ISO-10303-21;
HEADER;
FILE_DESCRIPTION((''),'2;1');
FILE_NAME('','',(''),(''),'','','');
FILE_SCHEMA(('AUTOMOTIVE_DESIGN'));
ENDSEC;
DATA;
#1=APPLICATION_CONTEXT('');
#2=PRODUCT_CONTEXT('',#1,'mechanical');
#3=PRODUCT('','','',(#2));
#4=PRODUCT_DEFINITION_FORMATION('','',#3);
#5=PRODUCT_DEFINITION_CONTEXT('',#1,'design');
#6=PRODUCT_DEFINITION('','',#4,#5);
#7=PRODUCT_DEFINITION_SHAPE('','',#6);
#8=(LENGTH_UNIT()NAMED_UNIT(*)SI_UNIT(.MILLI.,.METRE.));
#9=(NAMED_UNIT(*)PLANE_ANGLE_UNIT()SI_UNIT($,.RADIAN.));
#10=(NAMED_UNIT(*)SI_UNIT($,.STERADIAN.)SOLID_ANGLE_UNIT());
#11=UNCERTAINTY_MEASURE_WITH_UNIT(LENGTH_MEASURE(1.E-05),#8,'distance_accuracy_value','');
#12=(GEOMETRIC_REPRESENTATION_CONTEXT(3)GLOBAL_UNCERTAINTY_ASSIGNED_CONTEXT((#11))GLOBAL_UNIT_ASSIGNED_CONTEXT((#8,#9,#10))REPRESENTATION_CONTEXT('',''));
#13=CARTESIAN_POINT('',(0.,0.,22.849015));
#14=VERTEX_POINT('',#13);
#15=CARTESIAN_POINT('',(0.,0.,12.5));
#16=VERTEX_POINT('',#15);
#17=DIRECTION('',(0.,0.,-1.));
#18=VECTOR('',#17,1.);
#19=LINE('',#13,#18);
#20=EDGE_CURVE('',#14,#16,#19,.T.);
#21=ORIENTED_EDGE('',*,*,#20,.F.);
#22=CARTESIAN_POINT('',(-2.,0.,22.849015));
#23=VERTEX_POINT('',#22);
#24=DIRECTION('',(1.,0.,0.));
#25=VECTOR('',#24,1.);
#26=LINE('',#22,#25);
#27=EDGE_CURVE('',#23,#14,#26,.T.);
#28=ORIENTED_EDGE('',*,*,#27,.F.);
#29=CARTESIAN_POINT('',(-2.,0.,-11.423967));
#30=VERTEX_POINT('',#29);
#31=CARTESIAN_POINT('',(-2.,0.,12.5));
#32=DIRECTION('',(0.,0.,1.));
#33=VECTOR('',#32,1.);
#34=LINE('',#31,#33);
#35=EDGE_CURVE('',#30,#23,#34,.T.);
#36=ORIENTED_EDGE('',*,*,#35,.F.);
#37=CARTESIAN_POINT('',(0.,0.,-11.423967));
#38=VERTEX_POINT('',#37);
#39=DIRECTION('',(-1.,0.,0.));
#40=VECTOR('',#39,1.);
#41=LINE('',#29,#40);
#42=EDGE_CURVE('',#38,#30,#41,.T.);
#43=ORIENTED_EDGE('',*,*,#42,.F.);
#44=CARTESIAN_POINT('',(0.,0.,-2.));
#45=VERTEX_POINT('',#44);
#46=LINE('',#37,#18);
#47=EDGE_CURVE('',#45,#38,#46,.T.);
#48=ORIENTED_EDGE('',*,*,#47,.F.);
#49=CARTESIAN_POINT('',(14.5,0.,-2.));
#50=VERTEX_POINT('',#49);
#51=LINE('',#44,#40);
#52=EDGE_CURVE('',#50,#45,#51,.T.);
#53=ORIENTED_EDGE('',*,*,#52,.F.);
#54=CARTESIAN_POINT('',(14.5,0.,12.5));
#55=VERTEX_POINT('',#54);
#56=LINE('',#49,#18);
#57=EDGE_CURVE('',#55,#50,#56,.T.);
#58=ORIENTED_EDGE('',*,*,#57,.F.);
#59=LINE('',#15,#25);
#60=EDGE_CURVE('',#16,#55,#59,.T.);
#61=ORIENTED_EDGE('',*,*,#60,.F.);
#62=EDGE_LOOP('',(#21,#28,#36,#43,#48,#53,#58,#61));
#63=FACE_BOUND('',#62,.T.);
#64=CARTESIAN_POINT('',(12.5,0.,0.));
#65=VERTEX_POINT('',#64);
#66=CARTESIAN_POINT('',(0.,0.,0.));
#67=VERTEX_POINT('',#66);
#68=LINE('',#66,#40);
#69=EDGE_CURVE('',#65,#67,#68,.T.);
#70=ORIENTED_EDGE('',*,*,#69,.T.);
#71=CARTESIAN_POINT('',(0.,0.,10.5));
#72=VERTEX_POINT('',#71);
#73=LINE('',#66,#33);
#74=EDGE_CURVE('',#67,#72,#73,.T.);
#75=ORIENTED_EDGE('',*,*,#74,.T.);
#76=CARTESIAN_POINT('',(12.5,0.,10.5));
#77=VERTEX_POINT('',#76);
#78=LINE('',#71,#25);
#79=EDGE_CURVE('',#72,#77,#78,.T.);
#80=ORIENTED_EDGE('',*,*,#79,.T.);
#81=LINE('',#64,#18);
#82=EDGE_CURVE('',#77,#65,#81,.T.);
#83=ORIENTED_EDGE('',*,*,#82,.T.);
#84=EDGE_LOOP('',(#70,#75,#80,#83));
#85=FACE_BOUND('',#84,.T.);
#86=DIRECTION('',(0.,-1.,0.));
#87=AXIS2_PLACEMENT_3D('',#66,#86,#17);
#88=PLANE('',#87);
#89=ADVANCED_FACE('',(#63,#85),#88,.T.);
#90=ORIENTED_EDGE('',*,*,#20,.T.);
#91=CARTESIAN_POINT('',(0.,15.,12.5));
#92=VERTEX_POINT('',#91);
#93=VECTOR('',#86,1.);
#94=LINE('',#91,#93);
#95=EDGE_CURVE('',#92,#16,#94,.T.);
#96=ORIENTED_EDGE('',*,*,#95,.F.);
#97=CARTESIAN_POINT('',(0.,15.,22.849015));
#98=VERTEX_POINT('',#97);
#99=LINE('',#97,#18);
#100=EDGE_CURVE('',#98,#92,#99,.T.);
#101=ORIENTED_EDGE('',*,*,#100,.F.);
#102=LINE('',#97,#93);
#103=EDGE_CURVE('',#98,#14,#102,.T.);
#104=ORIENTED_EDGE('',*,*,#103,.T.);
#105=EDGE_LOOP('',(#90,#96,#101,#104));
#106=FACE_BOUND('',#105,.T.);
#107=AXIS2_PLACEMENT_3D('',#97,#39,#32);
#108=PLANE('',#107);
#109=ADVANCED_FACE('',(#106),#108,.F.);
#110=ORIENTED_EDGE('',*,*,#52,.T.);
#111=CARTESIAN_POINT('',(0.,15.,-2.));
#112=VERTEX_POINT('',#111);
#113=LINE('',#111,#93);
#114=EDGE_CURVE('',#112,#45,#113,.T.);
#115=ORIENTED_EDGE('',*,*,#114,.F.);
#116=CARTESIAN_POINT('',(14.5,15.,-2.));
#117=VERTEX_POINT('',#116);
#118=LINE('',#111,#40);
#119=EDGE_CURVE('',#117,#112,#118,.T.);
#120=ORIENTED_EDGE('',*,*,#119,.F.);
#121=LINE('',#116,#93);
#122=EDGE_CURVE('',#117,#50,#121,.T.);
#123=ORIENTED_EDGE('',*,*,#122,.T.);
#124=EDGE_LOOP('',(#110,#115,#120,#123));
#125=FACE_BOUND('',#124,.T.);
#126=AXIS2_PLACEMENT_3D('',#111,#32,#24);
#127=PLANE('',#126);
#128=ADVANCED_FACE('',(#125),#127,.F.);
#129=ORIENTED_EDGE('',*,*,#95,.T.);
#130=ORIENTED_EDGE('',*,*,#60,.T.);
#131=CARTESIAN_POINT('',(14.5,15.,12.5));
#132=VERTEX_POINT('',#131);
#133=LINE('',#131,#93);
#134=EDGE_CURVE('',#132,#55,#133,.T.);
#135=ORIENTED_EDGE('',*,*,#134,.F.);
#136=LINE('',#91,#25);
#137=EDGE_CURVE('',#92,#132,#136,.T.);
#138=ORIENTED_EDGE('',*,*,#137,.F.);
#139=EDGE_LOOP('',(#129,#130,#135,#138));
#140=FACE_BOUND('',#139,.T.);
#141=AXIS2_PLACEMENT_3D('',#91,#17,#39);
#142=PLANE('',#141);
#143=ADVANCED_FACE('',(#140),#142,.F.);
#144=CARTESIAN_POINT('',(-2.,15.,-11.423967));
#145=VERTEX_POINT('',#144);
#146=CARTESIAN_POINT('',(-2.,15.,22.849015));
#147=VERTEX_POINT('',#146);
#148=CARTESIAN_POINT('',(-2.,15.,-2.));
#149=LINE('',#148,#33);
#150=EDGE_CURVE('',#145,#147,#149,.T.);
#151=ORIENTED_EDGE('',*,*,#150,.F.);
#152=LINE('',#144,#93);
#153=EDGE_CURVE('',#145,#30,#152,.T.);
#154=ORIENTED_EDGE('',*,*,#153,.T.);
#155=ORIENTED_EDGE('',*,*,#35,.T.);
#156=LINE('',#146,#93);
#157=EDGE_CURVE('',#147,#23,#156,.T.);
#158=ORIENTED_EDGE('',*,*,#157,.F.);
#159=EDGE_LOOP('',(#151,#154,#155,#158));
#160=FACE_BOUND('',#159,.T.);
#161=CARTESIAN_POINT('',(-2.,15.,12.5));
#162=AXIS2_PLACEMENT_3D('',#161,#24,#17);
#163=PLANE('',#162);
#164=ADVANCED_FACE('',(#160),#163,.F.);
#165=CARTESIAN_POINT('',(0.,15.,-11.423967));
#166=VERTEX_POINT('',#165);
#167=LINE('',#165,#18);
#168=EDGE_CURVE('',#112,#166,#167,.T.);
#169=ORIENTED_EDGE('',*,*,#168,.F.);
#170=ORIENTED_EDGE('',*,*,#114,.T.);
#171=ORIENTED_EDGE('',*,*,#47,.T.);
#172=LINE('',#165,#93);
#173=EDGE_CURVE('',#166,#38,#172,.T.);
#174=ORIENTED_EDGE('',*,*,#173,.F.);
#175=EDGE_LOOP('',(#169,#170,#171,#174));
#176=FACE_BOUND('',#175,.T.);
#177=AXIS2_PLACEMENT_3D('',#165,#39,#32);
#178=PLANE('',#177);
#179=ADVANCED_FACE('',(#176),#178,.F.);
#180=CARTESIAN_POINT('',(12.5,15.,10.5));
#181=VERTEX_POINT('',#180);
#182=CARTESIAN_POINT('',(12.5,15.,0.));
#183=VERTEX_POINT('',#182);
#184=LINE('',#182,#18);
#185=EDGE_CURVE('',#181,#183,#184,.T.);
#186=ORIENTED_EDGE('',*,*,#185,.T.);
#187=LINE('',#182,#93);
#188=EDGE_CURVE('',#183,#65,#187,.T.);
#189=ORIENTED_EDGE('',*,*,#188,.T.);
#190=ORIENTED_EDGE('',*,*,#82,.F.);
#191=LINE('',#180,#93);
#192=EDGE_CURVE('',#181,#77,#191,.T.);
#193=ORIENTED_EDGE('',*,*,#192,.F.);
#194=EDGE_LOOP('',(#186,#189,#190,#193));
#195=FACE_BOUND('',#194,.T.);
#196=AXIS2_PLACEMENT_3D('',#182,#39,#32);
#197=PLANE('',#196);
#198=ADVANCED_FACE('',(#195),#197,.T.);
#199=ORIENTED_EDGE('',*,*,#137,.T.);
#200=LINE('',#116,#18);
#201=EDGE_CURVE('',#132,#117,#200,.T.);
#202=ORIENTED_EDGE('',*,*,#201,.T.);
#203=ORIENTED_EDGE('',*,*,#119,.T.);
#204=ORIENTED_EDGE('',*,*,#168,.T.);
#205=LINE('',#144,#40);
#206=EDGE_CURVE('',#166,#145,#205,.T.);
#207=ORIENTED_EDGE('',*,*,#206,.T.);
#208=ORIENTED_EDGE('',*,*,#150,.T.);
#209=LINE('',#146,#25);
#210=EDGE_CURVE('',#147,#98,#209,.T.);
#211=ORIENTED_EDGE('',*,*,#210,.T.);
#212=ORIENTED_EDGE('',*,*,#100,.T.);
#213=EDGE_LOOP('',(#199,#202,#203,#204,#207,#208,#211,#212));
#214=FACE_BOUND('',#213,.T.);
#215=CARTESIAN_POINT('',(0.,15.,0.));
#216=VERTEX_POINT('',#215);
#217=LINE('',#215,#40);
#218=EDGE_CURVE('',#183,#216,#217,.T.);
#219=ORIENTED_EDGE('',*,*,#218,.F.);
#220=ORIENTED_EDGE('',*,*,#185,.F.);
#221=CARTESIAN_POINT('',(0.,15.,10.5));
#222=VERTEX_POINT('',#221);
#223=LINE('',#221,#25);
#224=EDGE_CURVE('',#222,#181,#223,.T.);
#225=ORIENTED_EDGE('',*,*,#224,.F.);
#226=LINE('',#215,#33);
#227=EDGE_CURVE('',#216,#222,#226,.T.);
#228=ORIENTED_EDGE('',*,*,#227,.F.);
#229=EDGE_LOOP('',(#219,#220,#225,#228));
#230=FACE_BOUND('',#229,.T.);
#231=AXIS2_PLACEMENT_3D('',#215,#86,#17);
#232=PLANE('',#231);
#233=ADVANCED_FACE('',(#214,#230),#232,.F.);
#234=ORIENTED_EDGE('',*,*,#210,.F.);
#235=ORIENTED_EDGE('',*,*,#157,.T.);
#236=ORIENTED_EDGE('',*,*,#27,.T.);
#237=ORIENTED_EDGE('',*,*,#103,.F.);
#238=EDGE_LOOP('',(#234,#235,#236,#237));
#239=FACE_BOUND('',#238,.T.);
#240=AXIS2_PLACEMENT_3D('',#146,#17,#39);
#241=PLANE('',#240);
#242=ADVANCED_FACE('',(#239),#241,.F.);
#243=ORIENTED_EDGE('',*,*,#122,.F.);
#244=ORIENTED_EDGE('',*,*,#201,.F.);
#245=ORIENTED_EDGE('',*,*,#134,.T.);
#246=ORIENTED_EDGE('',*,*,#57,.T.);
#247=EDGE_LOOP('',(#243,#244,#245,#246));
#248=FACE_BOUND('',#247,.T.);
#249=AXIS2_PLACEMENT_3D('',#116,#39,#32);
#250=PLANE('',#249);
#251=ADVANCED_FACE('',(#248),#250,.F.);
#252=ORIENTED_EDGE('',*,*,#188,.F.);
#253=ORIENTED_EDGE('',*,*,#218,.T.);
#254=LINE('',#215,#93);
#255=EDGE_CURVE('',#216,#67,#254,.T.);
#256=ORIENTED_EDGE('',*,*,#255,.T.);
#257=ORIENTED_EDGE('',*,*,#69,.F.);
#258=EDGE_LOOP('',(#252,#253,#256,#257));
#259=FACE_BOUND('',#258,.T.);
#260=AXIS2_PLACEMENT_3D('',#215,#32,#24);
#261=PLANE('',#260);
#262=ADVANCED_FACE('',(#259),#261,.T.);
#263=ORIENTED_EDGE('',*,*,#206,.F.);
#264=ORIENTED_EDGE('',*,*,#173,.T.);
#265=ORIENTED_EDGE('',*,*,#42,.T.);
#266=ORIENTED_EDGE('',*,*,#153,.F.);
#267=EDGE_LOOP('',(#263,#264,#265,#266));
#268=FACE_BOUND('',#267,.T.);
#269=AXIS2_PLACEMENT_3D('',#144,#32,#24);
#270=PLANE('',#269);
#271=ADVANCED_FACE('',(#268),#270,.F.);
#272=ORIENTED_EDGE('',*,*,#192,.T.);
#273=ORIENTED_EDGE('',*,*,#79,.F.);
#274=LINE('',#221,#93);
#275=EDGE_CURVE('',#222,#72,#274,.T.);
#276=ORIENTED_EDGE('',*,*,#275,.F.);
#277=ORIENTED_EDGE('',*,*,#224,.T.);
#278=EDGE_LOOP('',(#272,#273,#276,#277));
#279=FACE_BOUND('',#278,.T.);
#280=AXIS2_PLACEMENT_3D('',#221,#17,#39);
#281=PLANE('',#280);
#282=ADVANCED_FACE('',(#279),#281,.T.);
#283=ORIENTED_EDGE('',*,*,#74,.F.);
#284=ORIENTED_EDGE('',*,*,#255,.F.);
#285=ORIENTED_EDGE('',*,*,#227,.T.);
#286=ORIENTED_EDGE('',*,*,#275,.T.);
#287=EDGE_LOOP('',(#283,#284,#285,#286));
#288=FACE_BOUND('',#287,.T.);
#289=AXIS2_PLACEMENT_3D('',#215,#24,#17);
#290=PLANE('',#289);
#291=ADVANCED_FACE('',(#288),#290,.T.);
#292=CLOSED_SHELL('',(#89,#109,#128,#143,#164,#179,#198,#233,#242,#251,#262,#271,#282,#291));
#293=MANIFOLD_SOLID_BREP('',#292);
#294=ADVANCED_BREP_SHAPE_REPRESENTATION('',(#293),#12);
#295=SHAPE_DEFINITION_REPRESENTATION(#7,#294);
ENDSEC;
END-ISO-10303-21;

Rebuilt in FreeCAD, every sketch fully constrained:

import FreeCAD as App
import Part
import Sketcher
from FreeCAD import Vector
Q = App.Units.Quantity

doc = App.newDocument("Part")
body = doc.addObject("PartDesign::Body", "Body")

# Sketch on XZ plane
sketch1 = body.newObject("Sketcher::SketchObject", "Sketch")
sketch1.AttachmentSupport = (doc.getObject("XZ_Plane"), [""])
sketch1.MapMode = "FlatFace"
sketch1.addGeometry(Part.LineSegment(Vector(-2, 22.8, 0), Vector(0, 22.8, 0)), False)
sketch1.addGeometry(Part.LineSegment(Vector(0, 22.8, 0), Vector(0, 12.5, 0)), False)
sketch1.addGeometry(Part.LineSegment(Vector(0, 12.5, 0), Vector(14.5, 12.5, 0)), False)
sketch1.addGeometry(Part.LineSegment(Vector(14.5, 12.5, 0), Vector(14.5, -2, 0)), False)
sketch1.addGeometry(Part.LineSegment(Vector(14.5, -2, 0), Vector(0, -2, 0)), False)
sketch1.addGeometry(Part.LineSegment(Vector(0, -2, 0), Vector(0, -11.4, 0)), False)
sketch1.addGeometry(Part.LineSegment(Vector(0, -11.4, 0), Vector(-2, -11.4, 0)), False)
sketch1.addGeometry(Part.LineSegment(Vector(-2, -11.4, 0), Vector(-2, 22.8, 0)), False)
sketch1.addGeometry(Part.LineSegment(Vector(12.5, 10.5, 0), Vector(0, 10.5, 0)), False)
sketch1.addGeometry(Part.LineSegment(Vector(0, 10.5, 0), Vector(0, 0, 0)), False)
sketch1.addGeometry(Part.LineSegment(Vector(0, 0, 0), Vector(12.5, 0, 0)), False)
sketch1.addGeometry(Part.LineSegment(Vector(12.5, 0, 0), Vector(12.5, 10.5, 0)), False)
sketch1.addConstraint(Sketcher.Constraint("Coincident", 0, 2, 1, 1))
sketch1.addConstraint(Sketcher.Constraint("Coincident", 1, 2, 2, 1))
sketch1.addConstraint(Sketcher.Constraint("Coincident", 2, 2, 3, 1))
sketch1.addConstraint(Sketcher.Constraint("Coincident", 3, 2, 4, 1))
sketch1.addConstraint(Sketcher.Constraint("Coincident", 4, 2, 5, 1))
sketch1.addConstraint(Sketcher.Constraint("Coincident", 5, 2, 6, 1))
sketch1.addConstraint(Sketcher.Constraint("Coincident", 6, 2, 7, 1))
sketch1.addConstraint(Sketcher.Constraint("Coincident", 7, 2, 0, 1))
sketch1.addConstraint(Sketcher.Constraint("Coincident", 8, 2, 9, 1))
sketch1.addConstraint(Sketcher.Constraint("Coincident", 9, 2, 10, 1))
sketch1.addConstraint(Sketcher.Constraint("Coincident", 10, 2, 11, 1))
sketch1.addConstraint(Sketcher.Constraint("Coincident", 11, 2, 8, 1))
sketch1.addConstraint(Sketcher.Constraint("Horizontal", 0))
sketch1.addConstraint(Sketcher.Constraint("Vertical", 1))
sketch1.addConstraint(Sketcher.Constraint("Horizontal", 2))
sketch1.addConstraint(Sketcher.Constraint("Vertical", 3))
sketch1.addConstraint(Sketcher.Constraint("Horizontal", 4))
sketch1.addConstraint(Sketcher.Constraint("Vertical", 5))
sketch1.addConstraint(Sketcher.Constraint("Horizontal", 6))
sketch1.addConstraint(Sketcher.Constraint("Vertical", 7))
sketch1.addConstraint(Sketcher.Constraint("Horizontal", 8))
sketch1.addConstraint(Sketcher.Constraint("Vertical", 9))
sketch1.addConstraint(Sketcher.Constraint("Horizontal", 10))
sketch1.addConstraint(Sketcher.Constraint("Vertical", 11))
sketch1.addConstraint(Sketcher.Constraint("Coincident", 9, 2, -1, 1))
sketch1.addConstraint(Sketcher.Constraint("PointOnObject", 0, 2, -2))
sketch1.addConstraint(Sketcher.Constraint("PointOnObject", 4, 2, -2))
sketch1.addConstraint(Sketcher.Constraint("Equal", 4, 3))
sketch1.addConstraint(Sketcher.Constraint("DistanceX", 0, 1, 0, 2, Q("2 mm")))
sketch1.addConstraint(Sketcher.Constraint("DistanceX", 2, 1, 2, 2, Q("14.5 mm")))
sketch1.addConstraint(Sketcher.Constraint("DistanceX", 8, 2, 8, 1, Q("12.5 mm")))
sketch1.addConstraint(Sketcher.Constraint("DistanceY", 9, 2, 9, 1, Q("10.5 mm")))
sketch1.addConstraint(Sketcher.Constraint("DistanceY", 3, 2, -1, 1, Q("2 mm")))
sketch1.addConstraint(Sketcher.Constraint("DistanceY", 1, 2, 1, 1, Q("10.349015 mm")))
sketch1.addConstraint(Sketcher.Constraint("DistanceY", 5, 2, 5, 1, Q("9.423967 mm")))
pad1 = body.newObject("PartDesign::Pad", "Pad")
pad1.Profile = sketch1
pad1.Length = 15
pad1.Reversed = True

doc.recompute()
